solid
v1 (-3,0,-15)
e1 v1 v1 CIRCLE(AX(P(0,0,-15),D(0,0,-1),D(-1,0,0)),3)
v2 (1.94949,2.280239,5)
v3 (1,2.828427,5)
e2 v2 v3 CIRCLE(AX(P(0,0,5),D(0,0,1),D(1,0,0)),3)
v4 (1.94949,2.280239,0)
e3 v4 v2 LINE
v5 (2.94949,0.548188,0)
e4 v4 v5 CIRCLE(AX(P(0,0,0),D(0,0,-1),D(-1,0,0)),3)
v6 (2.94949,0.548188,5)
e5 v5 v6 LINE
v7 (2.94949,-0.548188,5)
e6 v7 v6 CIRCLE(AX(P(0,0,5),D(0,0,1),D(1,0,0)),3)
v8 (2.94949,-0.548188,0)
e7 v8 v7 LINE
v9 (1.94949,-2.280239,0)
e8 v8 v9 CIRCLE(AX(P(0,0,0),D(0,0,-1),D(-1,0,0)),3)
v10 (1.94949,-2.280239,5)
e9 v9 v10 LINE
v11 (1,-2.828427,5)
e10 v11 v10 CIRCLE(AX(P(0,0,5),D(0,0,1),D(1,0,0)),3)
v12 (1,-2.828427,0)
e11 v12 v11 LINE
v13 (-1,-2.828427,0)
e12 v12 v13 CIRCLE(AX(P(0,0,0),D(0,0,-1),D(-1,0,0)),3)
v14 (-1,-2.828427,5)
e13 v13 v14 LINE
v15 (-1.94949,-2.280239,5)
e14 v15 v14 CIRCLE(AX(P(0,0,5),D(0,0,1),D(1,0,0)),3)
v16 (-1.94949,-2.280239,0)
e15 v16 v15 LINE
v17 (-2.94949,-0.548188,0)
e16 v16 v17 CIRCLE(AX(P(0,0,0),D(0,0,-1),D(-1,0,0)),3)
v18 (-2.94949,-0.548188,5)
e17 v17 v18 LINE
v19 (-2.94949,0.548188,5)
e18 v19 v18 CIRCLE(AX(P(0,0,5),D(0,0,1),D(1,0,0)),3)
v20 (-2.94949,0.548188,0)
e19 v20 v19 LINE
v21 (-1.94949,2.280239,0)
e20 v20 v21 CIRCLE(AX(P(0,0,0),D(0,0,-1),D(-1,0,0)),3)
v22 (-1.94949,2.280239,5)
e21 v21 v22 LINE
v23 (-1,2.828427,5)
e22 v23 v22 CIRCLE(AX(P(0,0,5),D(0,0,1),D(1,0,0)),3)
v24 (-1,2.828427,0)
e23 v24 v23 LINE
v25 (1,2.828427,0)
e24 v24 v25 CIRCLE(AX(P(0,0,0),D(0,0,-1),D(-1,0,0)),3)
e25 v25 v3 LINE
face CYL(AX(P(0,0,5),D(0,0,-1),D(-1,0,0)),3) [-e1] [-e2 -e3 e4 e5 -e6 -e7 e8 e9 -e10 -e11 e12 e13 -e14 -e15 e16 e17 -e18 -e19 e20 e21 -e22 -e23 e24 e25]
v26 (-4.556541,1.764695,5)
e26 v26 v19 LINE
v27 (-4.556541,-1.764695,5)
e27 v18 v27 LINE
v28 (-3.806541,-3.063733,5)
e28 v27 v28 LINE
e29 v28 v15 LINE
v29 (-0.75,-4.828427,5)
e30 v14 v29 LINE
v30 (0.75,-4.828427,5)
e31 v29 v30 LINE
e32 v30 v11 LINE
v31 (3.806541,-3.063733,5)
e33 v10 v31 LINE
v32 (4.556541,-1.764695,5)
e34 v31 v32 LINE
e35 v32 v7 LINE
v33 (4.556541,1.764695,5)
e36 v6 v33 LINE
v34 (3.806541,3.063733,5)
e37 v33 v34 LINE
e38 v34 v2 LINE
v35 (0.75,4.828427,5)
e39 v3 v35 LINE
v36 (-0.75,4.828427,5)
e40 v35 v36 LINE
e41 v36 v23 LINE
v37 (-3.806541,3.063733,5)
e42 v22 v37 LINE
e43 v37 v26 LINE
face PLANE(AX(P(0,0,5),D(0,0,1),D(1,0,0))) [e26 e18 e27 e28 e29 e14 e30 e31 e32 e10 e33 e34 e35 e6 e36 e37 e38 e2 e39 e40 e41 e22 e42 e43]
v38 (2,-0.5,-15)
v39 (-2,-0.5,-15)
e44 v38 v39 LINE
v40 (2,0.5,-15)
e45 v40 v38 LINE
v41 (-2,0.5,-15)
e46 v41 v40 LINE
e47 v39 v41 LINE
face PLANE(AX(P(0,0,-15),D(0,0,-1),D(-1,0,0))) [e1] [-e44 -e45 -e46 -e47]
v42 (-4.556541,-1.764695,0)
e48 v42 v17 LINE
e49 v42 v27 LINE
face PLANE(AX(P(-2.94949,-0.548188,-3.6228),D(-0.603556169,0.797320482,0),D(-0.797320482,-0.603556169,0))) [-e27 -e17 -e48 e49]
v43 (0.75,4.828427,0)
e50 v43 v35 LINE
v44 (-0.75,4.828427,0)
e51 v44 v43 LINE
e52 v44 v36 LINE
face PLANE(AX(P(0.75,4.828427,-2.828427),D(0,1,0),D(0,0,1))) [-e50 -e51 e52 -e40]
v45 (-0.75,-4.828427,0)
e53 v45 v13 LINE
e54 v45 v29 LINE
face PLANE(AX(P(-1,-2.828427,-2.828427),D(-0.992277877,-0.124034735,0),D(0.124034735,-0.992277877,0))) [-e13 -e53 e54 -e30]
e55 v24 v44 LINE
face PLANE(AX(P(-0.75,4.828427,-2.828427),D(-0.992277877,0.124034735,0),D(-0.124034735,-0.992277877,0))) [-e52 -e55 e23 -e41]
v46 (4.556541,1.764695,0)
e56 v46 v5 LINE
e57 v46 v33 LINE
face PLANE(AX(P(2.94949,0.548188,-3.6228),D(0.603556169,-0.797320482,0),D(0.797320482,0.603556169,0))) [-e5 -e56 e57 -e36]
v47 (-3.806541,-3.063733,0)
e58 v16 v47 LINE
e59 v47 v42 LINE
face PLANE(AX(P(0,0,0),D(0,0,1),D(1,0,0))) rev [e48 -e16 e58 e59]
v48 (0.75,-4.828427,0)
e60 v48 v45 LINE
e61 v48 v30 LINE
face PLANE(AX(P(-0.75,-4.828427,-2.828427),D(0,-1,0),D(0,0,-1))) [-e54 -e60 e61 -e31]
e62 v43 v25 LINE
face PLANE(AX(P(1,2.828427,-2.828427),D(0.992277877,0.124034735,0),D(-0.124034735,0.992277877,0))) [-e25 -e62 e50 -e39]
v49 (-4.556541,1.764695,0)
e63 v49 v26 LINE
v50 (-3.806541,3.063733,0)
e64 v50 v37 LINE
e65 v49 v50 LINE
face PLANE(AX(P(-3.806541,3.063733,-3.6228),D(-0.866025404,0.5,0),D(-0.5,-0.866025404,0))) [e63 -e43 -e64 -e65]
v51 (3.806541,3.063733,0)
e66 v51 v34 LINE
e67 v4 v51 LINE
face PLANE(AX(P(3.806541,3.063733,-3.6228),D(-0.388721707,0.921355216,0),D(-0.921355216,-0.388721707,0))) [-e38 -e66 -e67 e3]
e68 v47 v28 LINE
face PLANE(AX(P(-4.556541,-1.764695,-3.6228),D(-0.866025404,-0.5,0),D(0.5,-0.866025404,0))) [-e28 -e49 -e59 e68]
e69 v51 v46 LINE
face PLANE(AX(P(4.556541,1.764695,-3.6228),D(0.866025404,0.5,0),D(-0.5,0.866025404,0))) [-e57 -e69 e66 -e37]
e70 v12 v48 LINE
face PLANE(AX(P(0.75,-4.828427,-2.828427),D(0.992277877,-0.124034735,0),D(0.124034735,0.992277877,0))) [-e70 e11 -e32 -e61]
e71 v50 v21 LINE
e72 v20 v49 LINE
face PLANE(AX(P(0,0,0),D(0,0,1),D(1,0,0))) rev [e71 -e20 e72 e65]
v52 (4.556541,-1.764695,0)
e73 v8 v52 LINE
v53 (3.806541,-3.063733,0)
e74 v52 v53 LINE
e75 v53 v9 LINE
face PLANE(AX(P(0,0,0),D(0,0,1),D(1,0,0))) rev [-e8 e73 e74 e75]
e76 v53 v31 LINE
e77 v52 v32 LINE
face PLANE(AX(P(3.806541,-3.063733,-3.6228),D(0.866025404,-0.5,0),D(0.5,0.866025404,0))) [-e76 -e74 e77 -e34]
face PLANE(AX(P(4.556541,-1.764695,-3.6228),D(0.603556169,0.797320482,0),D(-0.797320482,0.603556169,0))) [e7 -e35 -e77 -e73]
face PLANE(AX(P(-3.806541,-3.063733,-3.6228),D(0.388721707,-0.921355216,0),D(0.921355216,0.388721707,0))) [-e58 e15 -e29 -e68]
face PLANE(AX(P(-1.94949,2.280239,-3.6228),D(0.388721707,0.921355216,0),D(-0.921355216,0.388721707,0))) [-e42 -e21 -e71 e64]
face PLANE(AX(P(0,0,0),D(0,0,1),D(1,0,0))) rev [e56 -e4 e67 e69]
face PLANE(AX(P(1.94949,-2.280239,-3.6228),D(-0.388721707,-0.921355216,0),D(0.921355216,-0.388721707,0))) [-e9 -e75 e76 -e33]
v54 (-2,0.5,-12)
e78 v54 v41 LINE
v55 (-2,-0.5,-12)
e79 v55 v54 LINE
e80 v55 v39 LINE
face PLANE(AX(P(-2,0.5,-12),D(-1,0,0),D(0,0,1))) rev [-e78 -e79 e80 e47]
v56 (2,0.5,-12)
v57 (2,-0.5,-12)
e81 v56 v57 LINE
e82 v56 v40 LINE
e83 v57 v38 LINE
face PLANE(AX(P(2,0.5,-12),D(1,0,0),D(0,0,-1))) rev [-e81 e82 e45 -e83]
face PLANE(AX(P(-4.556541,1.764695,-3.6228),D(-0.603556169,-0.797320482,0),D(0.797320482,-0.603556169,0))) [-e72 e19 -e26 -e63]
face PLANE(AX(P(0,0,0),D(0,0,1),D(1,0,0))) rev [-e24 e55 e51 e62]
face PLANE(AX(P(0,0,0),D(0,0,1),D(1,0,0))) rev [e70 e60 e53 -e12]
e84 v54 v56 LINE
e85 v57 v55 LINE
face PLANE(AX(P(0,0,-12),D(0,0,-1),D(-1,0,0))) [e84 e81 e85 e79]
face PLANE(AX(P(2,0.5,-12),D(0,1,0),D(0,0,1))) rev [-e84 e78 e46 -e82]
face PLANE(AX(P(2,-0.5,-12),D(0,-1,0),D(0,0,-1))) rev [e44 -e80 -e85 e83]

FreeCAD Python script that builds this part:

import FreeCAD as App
import Part
import Sketcher
from FreeCAD import Vector

doc = App.newDocument("Part")
params = doc.addObject("Spreadsheet::Sheet", "Params")
for row, (alias, value) in enumerate([
    ("sketch1_diameter", "6 mm"),
    ("pad1_length", "5 mm"),
    ("sketch2_width", "2 mm"),
    ("sketch2_width2", "1.5 mm"),
    ("pad2_length", "5 mm"),
    ("sketch3_diameter", "6 mm"),
    ("pad3_length", "15 mm"),
    ("sketch4_width", "4 mm"),
    ("sketch4_height", "1 mm"),
    ("pocket1_length", "3 mm"),
], start=1):
    params.set(f"A{row}", alias)
    params.set(f"B{row}", "=" + value)
    params.setAlias(f"B{row}", alias)

body = doc.addObject("PartDesign::Body", "Body")

sketch1 = body.newObject("Sketcher::SketchObject", "Sketch")
sketch1.AttachmentSupport = (doc.getObject("XY_Plane"), [""])
sketch1.MapMode = "FlatFace"
sketch1.addGeometry(Part.Circle(Vector(0, 0, 0), Vector(0, 0, 1), 3), False)
sketch1.addConstraint(Sketcher.Constraint("Coincident", 0, 3, -1, 1))
sketch1.addConstraint(Sketcher.Constraint("Diameter", 0, 6.0))
sketch1.setExpression("Constraints[1]", "Params.sketch1_diameter")
pad1 = body.newObject("PartDesign::Pad", "Pad")
pad1.Profile = sketch1
pad1.setExpression("Length", "Params.pad1_length")

sketch2 = body.newObject("Sketcher::SketchObject", "Sketch001")
sketch2.AttachmentSupport = (doc.getObject("XY_Plane"), [""])
sketch2.MapMode = "FlatFace"
sketch2.AttachmentOffset = App.Placement(Vector(0, 0, 5), App.Rotation())
sketch2.addGeometry(Part.LineSegment(Vector(-1, 2.8, 0), Vector(1, 2.8, 0)), False)
sketch2.addGeometry(Part.LineSegment(Vector(1, 2.8, 0), Vector(0.8, 4.8, 0)), False)
sketch2.addGeometry(Part.LineSegment(Vector(0.8, 4.8, 0), Vector(-0.8, 4.8, 0)), False)
sketch2.addGeometry(Part.LineSegment(Vector(-0.8, 4.8, 0), Vector(-1, 2.8, 0)), False)
sketch2.addConstraint(Sketcher.Constraint("Coincident", 0, 2, 1, 1))
sketch2.addConstraint(Sketcher.Constraint("Coincident", 1, 2, 2, 1))
sketch2.addConstraint(Sketcher.Constraint("Coincident", 2, 2, 3, 1))
sketch2.addConstraint(Sketcher.Constraint("Coincident", 3, 2, 0, 1))
sketch2.addConstraint(Sketcher.Constraint("Horizontal", 0))
sketch2.addConstraint(Sketcher.Constraint("Horizontal", 2))
sketch2.addConstraint(Sketcher.Constraint("Equal", 1, 3))
sketch2.addConstraint(Sketcher.Constraint("DistanceX", 0, 1, 0, 2, 2.0))
sketch2.addConstraint(Sketcher.Constraint("DistanceX", 2, 2, 2, 1, 1.5))
sketch2.addConstraint(Sketcher.Constraint("DistanceX", -1, 1, 0, 2, 1.0))
sketch2.addConstraint(Sketcher.Constraint("DistanceY", 0, 2, 1, 2, 2.0))
sketch2.addConstraint(Sketcher.Constraint("DistanceY", -1, 1, 0, 2, 2.828427))
sketch2.setExpression("Constraints[7]", "Params.sketch2_width")
sketch2.setExpression("Constraints[8]", "Params.sketch2_width2")
pad2 = body.newObject("PartDesign::Pad", "Pad001")
pad2.Profile = sketch2
pad2.setExpression("Length", "Params.pad2_length")
pad2.Reversed = True
doc.recompute()

polarpattern = body.newObject("PartDesign::PolarPattern", "PolarPattern")
polarpattern.Originals = [pad2]
polarpattern.Axis = (doc.getObject("Z_Axis"), [""])
polarpattern.Angle = 360
polarpattern.Occurrences = 6
body.Tip = polarpattern

sketch3 = body.newObject("Sketcher::SketchObject", "Sketch002")
sketch3.AttachmentSupport = (doc.getObject("XY_Plane"), [""])
sketch3.MapMode = "FlatFace"
sketch3.addGeometry(Part.Circle(Vector(0, 0, 0), Vector(0, 0, 1), 3), False)
sketch3.addConstraint(Sketcher.Constraint("Coincident", 0, 3, -1, 1))
sketch3.addConstraint(Sketcher.Constraint("Diameter", 0, 6.0))
sketch3.setExpression("Constraints[1]", "Params.sketch3_diameter")
pad3 = body.newObject("PartDesign::Pad", "Pad002")
pad3.Profile = sketch3
pad3.setExpression("Length", "Params.pad3_length")
pad3.Reversed = True

sketch4 = body.newObject("Sketcher::SketchObject", "Sketch003")
sketch4.AttachmentSupport = (doc.getObject("XY_Plane"), [""])
sketch4.MapMode = "FlatFace"
sketch4.AttachmentOffset = App.Placement(Vector(0, 0, -15), App.Rotation())
sketch4.addGeometry(Part.LineSegment(Vector(2, 0.5, 0), Vector(2, -0.5, 0)), False)
sketch4.addGeometry(Part.LineSegment(Vector(2, -0.5, 0), Vector(-2, -0.5, 0)), False)
sketch4.addGeometry(Part.LineSegment(Vector(-2, -0.5, 0), Vector(-2, 0.5, 0)), False)
sketch4.addGeometry(Part.LineSegment(Vector(-2, 0.5, 0), Vector(2, 0.5, 0)), False)
sketch4.addConstraint(Sketcher.Constraint("Coincident", 0, 2, 1, 1))
sketch4.addConstraint(Sketcher.Constraint("Coincident", 1, 2, 2, 1))
sketch4.addConstraint(Sketcher.Constraint("Coincident", 2, 2, 3, 1))
sketch4.addConstraint(Sketcher.Constraint("Coincident", 3, 2, 0, 1))
sketch4.addConstraint(Sketcher.Constraint("Vertical", 0))
sketch4.addConstraint(Sketcher.Constraint("Horizontal", 1))
sketch4.addConstraint(Sketcher.Constraint("Vertical", 2))
sketch4.addConstraint(Sketcher.Constraint("Horizontal", 3))
sketch4.addConstraint(Sketcher.Constraint("Symmetric", 0, 2, 2, 2, -1, 1))
sketch4.addConstraint(Sketcher.Constraint("DistanceX", 1, 2, 1, 1, 4.0))
sketch4.addConstraint(Sketcher.Constraint("DistanceY", 0, 2, 0, 1, 1.0))
sketch4.setExpression("Constraints[9]", "Params.sketch4_width")
sketch4.setExpression("Constraints[10]", "Params.sketch4_height")
pocket1 = body.newObject("PartDesign::Pocket", "Pocket")
pocket1.Profile = sketch4
pocket1.setExpression("Length", "Params.pocket1_length")
pocket1.Reversed = True

doc.recompute()
